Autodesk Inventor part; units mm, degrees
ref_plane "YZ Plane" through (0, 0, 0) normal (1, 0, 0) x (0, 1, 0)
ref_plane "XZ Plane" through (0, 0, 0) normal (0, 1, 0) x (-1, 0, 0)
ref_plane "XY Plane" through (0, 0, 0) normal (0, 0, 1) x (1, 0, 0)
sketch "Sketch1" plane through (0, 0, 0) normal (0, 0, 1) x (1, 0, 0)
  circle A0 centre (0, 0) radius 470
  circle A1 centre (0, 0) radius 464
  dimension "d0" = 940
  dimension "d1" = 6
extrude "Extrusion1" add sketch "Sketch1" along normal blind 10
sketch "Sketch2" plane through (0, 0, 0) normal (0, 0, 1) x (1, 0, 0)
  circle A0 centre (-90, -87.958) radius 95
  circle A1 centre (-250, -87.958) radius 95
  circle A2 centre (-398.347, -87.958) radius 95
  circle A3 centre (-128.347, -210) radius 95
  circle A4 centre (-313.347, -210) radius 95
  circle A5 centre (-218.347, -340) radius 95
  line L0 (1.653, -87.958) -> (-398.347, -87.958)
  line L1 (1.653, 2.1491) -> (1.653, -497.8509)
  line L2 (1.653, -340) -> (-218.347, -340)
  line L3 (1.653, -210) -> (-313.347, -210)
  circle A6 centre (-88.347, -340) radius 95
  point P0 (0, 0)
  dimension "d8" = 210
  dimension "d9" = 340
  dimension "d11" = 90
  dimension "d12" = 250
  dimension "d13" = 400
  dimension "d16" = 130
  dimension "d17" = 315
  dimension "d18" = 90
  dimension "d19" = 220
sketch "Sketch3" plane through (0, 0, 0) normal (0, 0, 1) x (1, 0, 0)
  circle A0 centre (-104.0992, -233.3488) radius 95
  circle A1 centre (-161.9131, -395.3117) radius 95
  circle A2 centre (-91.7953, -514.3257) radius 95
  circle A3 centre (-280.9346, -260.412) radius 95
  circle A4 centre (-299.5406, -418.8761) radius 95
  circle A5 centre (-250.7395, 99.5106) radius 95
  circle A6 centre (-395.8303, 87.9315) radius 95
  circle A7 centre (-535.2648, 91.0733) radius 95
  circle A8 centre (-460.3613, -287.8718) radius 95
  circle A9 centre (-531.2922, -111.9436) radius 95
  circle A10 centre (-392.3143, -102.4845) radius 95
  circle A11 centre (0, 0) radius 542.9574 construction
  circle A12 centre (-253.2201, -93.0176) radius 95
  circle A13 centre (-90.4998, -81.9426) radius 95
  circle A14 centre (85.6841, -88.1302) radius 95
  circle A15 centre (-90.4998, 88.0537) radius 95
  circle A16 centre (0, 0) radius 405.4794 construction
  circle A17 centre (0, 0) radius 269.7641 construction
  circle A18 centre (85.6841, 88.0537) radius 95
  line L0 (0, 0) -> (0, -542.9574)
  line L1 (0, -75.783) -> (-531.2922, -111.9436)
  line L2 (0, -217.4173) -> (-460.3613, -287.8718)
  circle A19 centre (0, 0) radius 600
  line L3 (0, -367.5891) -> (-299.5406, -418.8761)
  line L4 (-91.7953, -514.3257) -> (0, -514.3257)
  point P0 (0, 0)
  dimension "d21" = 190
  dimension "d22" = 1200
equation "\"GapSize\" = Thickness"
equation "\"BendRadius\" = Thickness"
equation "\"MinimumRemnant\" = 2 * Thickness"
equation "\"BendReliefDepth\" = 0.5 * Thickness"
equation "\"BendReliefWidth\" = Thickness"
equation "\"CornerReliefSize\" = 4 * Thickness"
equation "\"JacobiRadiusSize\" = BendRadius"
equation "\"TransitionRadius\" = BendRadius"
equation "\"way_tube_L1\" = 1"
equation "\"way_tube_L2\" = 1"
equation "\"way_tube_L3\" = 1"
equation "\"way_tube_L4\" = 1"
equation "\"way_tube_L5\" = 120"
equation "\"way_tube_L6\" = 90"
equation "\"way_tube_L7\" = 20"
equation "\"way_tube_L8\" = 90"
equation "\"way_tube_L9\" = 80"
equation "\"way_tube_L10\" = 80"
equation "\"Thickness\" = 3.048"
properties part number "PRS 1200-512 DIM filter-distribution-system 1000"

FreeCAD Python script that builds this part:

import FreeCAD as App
import Part
import Sketcher

doc = App.newDocument("Part")
body = doc.addObject("PartDesign::Body", "Body")

# Sketch on XY plane
sketch1 = body.newObject("Sketcher::SketchObject", "Sketch")
sketch1.AttachmentSupport = (doc.getObject("XY_Plane"), [""])
sketch1.MapMode = "FlatFace"
sketch1.addGeometry(Part.Circle(App.Vector(0, 0, 0), App.Vector(0, 0, 1), 470), False)
sketch1.addGeometry(Part.Circle(App.Vector(0, 0, 0), App.Vector(0, 0, 1), 464), False)
sketch1.addConstraint(Sketcher.Constraint("Coincident", 0, 3, -1, 1))
sketch1.addConstraint(Sketcher.Constraint("Coincident", 1, 3, -1, 1))
sketch1.addConstraint(Sketcher.Constraint("Diameter", 0, 940.0))
sketch1.addConstraint(Sketcher.Constraint("Diameter", 1, 928.0))
pad1 = body.newObject("PartDesign::Pad", "Pad")
pad1.Profile = sketch1
pad1.Length = 10

doc.recompute()
